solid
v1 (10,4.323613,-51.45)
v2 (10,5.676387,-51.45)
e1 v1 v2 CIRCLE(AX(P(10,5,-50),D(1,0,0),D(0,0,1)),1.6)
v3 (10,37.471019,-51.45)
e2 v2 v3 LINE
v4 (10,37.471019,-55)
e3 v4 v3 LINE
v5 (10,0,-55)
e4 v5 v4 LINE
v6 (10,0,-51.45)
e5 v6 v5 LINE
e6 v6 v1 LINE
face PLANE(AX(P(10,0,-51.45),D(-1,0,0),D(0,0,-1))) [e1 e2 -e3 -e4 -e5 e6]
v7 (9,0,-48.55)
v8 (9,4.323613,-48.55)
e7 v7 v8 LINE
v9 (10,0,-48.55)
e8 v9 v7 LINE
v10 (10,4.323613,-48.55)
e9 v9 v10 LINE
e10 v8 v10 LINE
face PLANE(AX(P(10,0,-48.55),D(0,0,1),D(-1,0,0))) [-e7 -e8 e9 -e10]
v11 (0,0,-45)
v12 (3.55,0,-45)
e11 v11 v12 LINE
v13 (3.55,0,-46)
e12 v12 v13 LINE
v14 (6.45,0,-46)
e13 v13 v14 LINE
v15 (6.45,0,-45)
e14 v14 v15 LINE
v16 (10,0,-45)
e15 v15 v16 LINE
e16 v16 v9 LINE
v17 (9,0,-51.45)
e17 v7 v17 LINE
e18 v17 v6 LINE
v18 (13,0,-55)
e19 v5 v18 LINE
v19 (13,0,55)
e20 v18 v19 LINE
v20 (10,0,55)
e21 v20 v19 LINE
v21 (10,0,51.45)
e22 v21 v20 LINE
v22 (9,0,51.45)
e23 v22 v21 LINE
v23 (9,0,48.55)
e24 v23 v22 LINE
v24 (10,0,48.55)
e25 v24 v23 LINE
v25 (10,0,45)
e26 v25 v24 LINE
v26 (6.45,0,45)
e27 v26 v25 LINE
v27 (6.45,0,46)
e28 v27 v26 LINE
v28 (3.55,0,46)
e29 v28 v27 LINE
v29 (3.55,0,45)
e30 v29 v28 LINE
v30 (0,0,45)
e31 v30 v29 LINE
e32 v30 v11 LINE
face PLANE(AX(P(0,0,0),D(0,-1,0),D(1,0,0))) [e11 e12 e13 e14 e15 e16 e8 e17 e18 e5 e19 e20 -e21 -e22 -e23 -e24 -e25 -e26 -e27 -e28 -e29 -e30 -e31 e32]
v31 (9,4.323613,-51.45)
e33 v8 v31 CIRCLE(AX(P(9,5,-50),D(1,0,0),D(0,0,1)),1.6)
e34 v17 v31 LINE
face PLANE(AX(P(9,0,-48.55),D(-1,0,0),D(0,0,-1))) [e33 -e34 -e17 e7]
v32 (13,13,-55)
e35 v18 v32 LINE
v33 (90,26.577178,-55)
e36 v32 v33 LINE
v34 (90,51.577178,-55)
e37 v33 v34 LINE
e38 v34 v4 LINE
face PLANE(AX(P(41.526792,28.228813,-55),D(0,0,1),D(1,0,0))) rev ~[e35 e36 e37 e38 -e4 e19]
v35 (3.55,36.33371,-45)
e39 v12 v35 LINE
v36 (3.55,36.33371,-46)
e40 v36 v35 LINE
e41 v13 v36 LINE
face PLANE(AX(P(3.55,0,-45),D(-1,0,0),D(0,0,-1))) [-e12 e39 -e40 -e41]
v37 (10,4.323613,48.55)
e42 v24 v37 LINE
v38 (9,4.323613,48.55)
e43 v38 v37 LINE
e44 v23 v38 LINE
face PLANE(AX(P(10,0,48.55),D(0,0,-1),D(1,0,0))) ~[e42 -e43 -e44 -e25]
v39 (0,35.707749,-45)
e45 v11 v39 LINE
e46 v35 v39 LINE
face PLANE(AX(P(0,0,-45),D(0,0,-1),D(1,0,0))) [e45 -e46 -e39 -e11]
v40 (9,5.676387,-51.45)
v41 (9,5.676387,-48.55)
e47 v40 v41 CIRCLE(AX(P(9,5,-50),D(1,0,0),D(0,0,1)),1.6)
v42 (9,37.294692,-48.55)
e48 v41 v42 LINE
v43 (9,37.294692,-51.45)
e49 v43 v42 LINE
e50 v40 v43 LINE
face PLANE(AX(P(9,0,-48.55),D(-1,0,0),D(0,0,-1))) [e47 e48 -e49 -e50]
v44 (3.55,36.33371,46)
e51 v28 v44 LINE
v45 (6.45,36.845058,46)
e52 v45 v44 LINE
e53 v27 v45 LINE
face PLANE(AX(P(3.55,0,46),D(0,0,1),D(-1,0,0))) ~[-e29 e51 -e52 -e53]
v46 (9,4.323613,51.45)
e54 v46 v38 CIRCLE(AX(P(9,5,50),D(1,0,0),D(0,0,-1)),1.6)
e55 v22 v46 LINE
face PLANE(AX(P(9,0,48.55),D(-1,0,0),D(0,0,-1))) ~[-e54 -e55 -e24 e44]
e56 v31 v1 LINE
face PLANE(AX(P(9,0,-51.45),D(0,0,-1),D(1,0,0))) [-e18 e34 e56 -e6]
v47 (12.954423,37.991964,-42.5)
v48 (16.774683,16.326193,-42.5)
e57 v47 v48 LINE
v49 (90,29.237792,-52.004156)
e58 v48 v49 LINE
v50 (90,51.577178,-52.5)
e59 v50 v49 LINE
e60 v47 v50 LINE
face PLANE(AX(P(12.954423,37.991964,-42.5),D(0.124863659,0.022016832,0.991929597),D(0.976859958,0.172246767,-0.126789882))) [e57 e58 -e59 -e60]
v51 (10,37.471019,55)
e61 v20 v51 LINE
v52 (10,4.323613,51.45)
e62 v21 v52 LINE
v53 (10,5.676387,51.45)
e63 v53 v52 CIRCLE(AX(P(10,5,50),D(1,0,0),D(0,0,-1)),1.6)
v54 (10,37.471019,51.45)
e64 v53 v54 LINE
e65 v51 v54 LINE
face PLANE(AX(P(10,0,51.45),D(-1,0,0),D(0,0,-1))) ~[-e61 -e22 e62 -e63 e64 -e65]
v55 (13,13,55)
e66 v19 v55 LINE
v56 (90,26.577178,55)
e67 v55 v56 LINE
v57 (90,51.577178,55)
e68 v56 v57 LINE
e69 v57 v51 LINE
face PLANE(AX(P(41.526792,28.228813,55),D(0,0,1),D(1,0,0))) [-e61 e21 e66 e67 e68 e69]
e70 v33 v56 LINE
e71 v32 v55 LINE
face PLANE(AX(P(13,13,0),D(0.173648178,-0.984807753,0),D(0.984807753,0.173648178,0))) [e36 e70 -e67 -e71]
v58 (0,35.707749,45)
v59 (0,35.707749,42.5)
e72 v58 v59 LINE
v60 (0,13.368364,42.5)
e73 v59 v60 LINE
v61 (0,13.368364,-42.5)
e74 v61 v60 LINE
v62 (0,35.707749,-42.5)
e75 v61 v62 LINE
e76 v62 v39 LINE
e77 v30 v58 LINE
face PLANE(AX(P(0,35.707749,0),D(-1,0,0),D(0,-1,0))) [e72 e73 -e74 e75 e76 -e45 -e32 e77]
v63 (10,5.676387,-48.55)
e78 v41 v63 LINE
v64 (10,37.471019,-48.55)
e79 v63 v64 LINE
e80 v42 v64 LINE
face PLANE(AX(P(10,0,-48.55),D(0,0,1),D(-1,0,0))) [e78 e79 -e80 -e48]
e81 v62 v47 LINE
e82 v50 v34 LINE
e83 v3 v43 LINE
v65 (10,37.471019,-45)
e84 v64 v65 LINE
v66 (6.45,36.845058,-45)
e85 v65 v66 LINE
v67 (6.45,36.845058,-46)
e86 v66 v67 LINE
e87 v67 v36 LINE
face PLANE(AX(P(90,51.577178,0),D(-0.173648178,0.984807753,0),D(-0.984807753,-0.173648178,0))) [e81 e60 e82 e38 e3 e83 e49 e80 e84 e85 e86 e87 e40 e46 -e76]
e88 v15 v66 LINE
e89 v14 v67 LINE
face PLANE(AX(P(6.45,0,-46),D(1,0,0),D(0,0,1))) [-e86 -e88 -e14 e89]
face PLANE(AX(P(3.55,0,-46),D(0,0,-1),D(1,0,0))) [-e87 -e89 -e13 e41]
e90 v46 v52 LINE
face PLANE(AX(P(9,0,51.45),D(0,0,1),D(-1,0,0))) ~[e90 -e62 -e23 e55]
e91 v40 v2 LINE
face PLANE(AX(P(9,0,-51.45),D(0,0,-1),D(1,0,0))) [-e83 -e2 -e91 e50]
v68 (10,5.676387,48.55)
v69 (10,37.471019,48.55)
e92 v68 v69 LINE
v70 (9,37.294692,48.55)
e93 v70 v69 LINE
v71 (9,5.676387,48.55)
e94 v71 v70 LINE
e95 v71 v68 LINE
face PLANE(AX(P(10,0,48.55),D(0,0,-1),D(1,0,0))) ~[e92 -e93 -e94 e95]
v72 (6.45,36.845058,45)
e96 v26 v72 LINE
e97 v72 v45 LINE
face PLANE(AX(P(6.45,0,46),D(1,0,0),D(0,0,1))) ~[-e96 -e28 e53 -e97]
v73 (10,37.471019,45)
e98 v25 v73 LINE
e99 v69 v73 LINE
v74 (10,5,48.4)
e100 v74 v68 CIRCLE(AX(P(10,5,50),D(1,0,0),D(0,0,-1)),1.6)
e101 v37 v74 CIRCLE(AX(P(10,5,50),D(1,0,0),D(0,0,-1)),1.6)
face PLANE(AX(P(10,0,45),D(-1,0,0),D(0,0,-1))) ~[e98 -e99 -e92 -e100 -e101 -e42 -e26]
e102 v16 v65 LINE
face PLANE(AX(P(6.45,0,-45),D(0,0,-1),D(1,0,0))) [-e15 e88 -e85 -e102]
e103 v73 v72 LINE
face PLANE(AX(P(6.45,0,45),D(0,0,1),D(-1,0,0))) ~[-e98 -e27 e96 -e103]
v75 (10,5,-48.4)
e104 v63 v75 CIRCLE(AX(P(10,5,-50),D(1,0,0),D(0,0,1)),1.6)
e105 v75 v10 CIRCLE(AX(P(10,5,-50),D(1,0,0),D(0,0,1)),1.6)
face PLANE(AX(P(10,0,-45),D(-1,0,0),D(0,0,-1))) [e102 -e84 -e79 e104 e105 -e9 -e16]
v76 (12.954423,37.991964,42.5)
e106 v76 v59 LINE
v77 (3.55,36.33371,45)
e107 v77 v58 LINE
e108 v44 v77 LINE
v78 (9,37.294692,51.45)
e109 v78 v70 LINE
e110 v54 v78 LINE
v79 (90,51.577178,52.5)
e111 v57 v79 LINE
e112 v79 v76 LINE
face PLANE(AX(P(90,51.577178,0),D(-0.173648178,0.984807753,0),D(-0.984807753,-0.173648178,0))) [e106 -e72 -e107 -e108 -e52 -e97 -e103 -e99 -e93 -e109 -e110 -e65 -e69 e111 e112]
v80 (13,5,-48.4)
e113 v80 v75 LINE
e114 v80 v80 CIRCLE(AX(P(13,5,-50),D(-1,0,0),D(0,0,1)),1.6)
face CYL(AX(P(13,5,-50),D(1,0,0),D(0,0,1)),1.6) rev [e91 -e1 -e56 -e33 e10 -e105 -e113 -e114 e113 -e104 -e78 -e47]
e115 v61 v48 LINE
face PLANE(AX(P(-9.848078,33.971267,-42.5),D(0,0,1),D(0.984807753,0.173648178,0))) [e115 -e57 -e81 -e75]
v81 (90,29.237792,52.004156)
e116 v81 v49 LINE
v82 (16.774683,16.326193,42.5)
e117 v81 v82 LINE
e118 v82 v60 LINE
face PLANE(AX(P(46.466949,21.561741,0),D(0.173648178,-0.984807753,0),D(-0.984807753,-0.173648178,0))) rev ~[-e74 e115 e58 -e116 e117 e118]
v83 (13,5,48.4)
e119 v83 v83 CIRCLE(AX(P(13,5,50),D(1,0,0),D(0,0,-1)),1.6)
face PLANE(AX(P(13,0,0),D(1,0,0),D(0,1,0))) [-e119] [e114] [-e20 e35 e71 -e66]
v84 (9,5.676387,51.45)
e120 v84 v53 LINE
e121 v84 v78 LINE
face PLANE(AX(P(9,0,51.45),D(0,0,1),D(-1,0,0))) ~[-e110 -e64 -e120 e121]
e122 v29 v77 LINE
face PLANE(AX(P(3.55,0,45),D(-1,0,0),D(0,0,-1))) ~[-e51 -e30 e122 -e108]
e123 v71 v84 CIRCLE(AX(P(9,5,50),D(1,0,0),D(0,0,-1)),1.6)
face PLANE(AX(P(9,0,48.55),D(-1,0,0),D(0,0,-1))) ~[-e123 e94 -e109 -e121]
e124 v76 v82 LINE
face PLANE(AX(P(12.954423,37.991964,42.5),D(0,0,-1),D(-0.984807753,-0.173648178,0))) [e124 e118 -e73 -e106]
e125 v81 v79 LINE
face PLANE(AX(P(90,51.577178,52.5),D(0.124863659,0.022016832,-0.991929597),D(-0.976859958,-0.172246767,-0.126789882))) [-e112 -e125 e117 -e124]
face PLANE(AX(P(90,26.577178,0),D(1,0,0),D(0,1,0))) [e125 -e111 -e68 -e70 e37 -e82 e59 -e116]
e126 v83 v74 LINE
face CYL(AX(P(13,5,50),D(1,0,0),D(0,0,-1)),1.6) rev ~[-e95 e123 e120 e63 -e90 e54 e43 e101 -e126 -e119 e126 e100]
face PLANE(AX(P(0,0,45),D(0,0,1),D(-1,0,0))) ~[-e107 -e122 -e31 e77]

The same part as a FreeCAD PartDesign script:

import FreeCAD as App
import Part
import Sketcher

V = App.Vector
Q = App.Units.Quantity

doc = App.newDocument("Part")
body = doc.addObject("PartDesign::Body", "Body")

# Sketch on XY plane
sketch1 = body.newObject("Sketcher::SketchObject", "Sketch")
sketch1.AttachmentSupport = (doc.getObject("XY_Plane"), [""])
sketch1.MapMode = "FlatFace"
sketch1.addGeometry([
    Part.LineSegment(V(0, 0, 0), V(13, 0, 0)),  # 0
    Part.LineSegment(V(13, 0, 0), V(13, 13, 0)),  # 1
    Part.LineSegment(V(13, 13, 0), V(90, 27, 0)),  # 2
    Part.LineSegment(V(90, 27, 0), V(90, 52, 0)),  # 3
    Part.LineSegment(V(90, 52, 0), V(0, 36, 0)),  # 4
    Part.LineSegment(V(0, 36, 0), V(0, 0, 0)),  # 5
], False)
sketch1.addConstraint([
    Sketcher.Constraint("Coincident", 0, 2, 1, 1),
    Sketcher.Constraint("Coincident", 1, 2, 2, 1),
    Sketcher.Constraint("Coincident", 2, 2, 3, 1),
    Sketcher.Constraint("Coincident", 3, 2, 4, 1),
    Sketcher.Constraint("Coincident", 4, 2, 5, 1),
    Sketcher.Constraint("Coincident", 5, 2, 0, 1),
    Sketcher.Constraint("Horizontal", 0),
    Sketcher.Constraint("Vertical", 1),
    Sketcher.Constraint("Vertical", 3),
    Sketcher.Constraint("Vertical", 5),
    Sketcher.Constraint("Coincident", 5, 2, -1, 1),
    Sketcher.Constraint("Parallel", 2, 4),
    Sketcher.Constraint("Equal", 0, 1),
    Sketcher.Constraint("DistanceX", 0, 1, 0, 2, 13.0),
    Sketcher.Constraint("DistanceY", 3, 1, 3, 2, 25.0),
    Sketcher.Constraint("Angle", 2, Q("10 deg")),
    Sketcher.Constraint("DistanceX", -1, 1, 2, 2, 90.0),
])
pad1 = body.newObject("PartDesign::Pad", "Pad")
pad1.Profile = sketch1
pad1.Length = 110
pad1.Midplane = True

# Sketch on XZ plane
sketch2 = body.newObject("Sketcher::SketchObject", "Sketch001")
sketch2.AttachmentSupport = (doc.getObject("XZ_Plane"), [""])
sketch2.MapMode = "FlatFace"
sketch2.addGeometry([
    Part.LineSegment(V(0, -45, 0), V(3.5, -45, 0)),  # 0
    Part.LineSegment(V(3.5, -45, 0), V(3.5, -46, 0)),  # 1
    Part.LineSegment(V(3.5, -46, 0), V(6.5, -46, 0)),  # 2
    Part.LineSegment(V(6.5, -46, 0), V(6.5, -45, 0)),  # 3
    Part.LineSegment(V(6.5, -45, 0), V(10, -45, 0)),  # 4
    Part.LineSegment(V(10, -45, 0), V(10, -48.5, 0)),  # 5
    Part.LineSegment(V(10, -48.5, 0), V(9, -48.5, 0)),  # 6
    Part.LineSegment(V(9, -48.5, 0), V(9, -51.5, 0)),  # 7
    Part.LineSegment(V(9, -51.5, 0), V(10, -51.5, 0)),  # 8
    Part.LineSegment(V(10, -51.5, 0), V(10, -55, 0)),  # 9
    Part.LineSegment(V(10, -55, 0), V(0, -55, 0)),  # 10
    Part.LineSegment(V(0, -55, 0), V(0, -45, 0)),  # 11
], False)
sketch2.addConstraint([
    Sketcher.Constraint("Coincident", 0, 2, 1, 1),
    Sketcher.Constraint("Coincident", 1, 2, 2, 1),
    Sketcher.Constraint("Coincident", 2, 2, 3, 1),
    Sketcher.Constraint("Coincident", 3, 2, 4, 1),
    Sketcher.Constraint("Coincident", 4, 2, 5, 1),
    Sketcher.Constraint("Coincident", 5, 2, 6, 1),
    Sketcher.Constraint("Coincident", 6, 2, 7, 1),
    Sketcher.Constraint("Coincident", 7, 2, 8, 1),
    Sketcher.Constraint("Coincident", 8, 2, 9, 1),
    Sketcher.Constraint("Coincident", 9, 2, 10, 1),
    Sketcher.Constraint("Coincident", 10, 2, 11, 1),
    Sketcher.Constraint("Coincident", 11, 2, 0, 1),
    Sketcher.Constraint("Horizontal", 0),
    Sketcher.Constraint("Vertical", 1),
    Sketcher.Constraint("Horizontal", 2),
    Sketcher.Constraint("Vertical", 3),
    Sketcher.Constraint("Horizontal", 4),
    Sketcher.Constraint("Vertical", 5),
    Sketcher.Constraint("Horizontal", 6),
    Sketcher.Constraint("Vertical", 7),
    Sketcher.Constraint("Horizontal", 8),
    Sketcher.Constraint("Vertical", 9),
    Sketcher.Constraint("Horizontal", 10),
    Sketcher.Constraint("Vertical", 11),
    Sketcher.Constraint("PointOnObject", 10, 2, -2),
    Sketcher.Constraint("Horizontal", 0, 2, 3, 2),
    Sketcher.Constraint("Vertical", 5, 2, 8, 2),
    Sketcher.Constraint("Equal", 0, 4),
    Sketcher.Constraint("Equal", 8, 1),
    Sketcher.Constraint("Equal", 4, 5),
    Sketcher.Constraint("Equal", 2, 7),
    Sketcher.Constraint("Equal", 5, 9),
    Sketcher.Constraint("DistanceX", 6, 2, 6, 1, 1.0),
    Sketcher.Constraint("DistanceX", 10, 2, 10, 1, 10.0),
    Sketcher.Constraint("DistanceX", 2, 1, 2, 2, 2.9),
    Sketcher.Constraint("DistanceY", 0, 2, -1, 1, 45.0),
])
pocket1 = body.newObject("PartDesign::Pocket", "Pocket")
pocket1.Profile = sketch2
pocket1.Type = "ThroughAll"

# Sketch on YZ plane
sketch3 = body.newObject("Sketcher::SketchObject", "Sketch002")
sketch3.AttachmentSupport = (doc.getObject("YZ_Plane"), [""])
sketch3.MapMode = "FlatFace"
sketch3.AttachmentOffset = App.Placement(V(0, 0, 13), App.Rotation())
sketch3.addGeometry(Part.Circle(V(5, 50, 0), V(0, 0, 1), 1.6), False)
sketch3.addConstraint([
    Sketcher.Constraint("Diameter", 0, 3.2),
    Sketcher.Constraint("DistanceX", -1, 1, 0, 3, 5.0),
    Sketcher.Constraint("DistanceY", -1, 1, 0, 3, 50.0),
])
pocket2 = body.newObject("PartDesign::Pocket", "Pocket001")
pocket2.Profile = sketch3
pocket2.Type = "ThroughAll"
doc.recompute()

mirrored = body.newObject("PartDesign::Mirrored", "Mirrored")
mirrored.Originals = [pocket1, pocket2]
mirrored.MirrorPlane = (doc.getObject("XY_Plane"), [""])
body.Tip = mirrored

# Sketch on an angled plane
sketch4 = body.newObject("Sketcher::SketchObject", "Sketch003")
sketch4.Placement = App.Placement(V(-6.106385, 34.631029, 0), App.Rotation(V(0.984807753, 0.173648178, 0), V(0, 0, -1), V(-0.173648178, 0.984807753, 0), "ZXY"))
sketch4.addGeometry([
    Part.LineSegment(V(98, -53, 0), V(98, 53, 0)),  # 0
    Part.LineSegment(V(98, 53, 0), V(19, 43, 0)),  # 1
    Part.LineSegment(V(19, 43, 0), V(-4, 43, 0)),  # 2
    Part.LineSegment(V(-4, 43, 0), V(-4, -43, 0)),  # 3
    Part.LineSegment(V(-4, -43, 0), V(19, -43, 0)),  # 4
    Part.LineSegment(V(19, -43, 0), V(98, -53, 0)),  # 5
], False)
sketch4.addConstraint([
    Sketcher.Constraint("Coincident", 0, 2, 1, 1),
    Sketcher.Constraint("Coincident", 1, 2, 2, 1),
    Sketcher.Constraint("Coincident", 2, 2, 3, 1),
    Sketcher.Constraint("Coincident", 3, 2, 4, 1),
    Sketcher.Constraint("Coincident", 4, 2, 5, 1),
    Sketcher.Constraint("Coincident", 5, 2, 0, 1),
    Sketcher.Constraint("Vertical", 0),
    Sketcher.Constraint("Horizontal", 2),
    Sketcher.Constraint("Vertical", 3),
    Sketcher.Constraint("Horizontal", 4),
    Sketcher.Constraint("Symmetric", 1, 2, 4, 2, -1),
    Sketcher.Constraint("Equal", 1, 5),
    Sketcher.Constraint("DistanceY", 0, 1, 0, 2, 105.0),
    Sketcher.Constraint("DistanceY", 3, 2, 3, 1, 85.0),
    Sketcher.Constraint("DistanceX", 2, 2, 2, 1, 23.154266),
    Sketcher.Constraint("DistanceX", -1, 1, 0, 2, 97.588981),
    Sketcher.Constraint("DistanceX", -1, 1, 1, 2, 19.354852),
])
pocket3 = body.newObject("PartDesign::Pocket", "Pocket002")
pocket3.Profile = sketch4
pocket3.Length = 22

doc.recompute()
